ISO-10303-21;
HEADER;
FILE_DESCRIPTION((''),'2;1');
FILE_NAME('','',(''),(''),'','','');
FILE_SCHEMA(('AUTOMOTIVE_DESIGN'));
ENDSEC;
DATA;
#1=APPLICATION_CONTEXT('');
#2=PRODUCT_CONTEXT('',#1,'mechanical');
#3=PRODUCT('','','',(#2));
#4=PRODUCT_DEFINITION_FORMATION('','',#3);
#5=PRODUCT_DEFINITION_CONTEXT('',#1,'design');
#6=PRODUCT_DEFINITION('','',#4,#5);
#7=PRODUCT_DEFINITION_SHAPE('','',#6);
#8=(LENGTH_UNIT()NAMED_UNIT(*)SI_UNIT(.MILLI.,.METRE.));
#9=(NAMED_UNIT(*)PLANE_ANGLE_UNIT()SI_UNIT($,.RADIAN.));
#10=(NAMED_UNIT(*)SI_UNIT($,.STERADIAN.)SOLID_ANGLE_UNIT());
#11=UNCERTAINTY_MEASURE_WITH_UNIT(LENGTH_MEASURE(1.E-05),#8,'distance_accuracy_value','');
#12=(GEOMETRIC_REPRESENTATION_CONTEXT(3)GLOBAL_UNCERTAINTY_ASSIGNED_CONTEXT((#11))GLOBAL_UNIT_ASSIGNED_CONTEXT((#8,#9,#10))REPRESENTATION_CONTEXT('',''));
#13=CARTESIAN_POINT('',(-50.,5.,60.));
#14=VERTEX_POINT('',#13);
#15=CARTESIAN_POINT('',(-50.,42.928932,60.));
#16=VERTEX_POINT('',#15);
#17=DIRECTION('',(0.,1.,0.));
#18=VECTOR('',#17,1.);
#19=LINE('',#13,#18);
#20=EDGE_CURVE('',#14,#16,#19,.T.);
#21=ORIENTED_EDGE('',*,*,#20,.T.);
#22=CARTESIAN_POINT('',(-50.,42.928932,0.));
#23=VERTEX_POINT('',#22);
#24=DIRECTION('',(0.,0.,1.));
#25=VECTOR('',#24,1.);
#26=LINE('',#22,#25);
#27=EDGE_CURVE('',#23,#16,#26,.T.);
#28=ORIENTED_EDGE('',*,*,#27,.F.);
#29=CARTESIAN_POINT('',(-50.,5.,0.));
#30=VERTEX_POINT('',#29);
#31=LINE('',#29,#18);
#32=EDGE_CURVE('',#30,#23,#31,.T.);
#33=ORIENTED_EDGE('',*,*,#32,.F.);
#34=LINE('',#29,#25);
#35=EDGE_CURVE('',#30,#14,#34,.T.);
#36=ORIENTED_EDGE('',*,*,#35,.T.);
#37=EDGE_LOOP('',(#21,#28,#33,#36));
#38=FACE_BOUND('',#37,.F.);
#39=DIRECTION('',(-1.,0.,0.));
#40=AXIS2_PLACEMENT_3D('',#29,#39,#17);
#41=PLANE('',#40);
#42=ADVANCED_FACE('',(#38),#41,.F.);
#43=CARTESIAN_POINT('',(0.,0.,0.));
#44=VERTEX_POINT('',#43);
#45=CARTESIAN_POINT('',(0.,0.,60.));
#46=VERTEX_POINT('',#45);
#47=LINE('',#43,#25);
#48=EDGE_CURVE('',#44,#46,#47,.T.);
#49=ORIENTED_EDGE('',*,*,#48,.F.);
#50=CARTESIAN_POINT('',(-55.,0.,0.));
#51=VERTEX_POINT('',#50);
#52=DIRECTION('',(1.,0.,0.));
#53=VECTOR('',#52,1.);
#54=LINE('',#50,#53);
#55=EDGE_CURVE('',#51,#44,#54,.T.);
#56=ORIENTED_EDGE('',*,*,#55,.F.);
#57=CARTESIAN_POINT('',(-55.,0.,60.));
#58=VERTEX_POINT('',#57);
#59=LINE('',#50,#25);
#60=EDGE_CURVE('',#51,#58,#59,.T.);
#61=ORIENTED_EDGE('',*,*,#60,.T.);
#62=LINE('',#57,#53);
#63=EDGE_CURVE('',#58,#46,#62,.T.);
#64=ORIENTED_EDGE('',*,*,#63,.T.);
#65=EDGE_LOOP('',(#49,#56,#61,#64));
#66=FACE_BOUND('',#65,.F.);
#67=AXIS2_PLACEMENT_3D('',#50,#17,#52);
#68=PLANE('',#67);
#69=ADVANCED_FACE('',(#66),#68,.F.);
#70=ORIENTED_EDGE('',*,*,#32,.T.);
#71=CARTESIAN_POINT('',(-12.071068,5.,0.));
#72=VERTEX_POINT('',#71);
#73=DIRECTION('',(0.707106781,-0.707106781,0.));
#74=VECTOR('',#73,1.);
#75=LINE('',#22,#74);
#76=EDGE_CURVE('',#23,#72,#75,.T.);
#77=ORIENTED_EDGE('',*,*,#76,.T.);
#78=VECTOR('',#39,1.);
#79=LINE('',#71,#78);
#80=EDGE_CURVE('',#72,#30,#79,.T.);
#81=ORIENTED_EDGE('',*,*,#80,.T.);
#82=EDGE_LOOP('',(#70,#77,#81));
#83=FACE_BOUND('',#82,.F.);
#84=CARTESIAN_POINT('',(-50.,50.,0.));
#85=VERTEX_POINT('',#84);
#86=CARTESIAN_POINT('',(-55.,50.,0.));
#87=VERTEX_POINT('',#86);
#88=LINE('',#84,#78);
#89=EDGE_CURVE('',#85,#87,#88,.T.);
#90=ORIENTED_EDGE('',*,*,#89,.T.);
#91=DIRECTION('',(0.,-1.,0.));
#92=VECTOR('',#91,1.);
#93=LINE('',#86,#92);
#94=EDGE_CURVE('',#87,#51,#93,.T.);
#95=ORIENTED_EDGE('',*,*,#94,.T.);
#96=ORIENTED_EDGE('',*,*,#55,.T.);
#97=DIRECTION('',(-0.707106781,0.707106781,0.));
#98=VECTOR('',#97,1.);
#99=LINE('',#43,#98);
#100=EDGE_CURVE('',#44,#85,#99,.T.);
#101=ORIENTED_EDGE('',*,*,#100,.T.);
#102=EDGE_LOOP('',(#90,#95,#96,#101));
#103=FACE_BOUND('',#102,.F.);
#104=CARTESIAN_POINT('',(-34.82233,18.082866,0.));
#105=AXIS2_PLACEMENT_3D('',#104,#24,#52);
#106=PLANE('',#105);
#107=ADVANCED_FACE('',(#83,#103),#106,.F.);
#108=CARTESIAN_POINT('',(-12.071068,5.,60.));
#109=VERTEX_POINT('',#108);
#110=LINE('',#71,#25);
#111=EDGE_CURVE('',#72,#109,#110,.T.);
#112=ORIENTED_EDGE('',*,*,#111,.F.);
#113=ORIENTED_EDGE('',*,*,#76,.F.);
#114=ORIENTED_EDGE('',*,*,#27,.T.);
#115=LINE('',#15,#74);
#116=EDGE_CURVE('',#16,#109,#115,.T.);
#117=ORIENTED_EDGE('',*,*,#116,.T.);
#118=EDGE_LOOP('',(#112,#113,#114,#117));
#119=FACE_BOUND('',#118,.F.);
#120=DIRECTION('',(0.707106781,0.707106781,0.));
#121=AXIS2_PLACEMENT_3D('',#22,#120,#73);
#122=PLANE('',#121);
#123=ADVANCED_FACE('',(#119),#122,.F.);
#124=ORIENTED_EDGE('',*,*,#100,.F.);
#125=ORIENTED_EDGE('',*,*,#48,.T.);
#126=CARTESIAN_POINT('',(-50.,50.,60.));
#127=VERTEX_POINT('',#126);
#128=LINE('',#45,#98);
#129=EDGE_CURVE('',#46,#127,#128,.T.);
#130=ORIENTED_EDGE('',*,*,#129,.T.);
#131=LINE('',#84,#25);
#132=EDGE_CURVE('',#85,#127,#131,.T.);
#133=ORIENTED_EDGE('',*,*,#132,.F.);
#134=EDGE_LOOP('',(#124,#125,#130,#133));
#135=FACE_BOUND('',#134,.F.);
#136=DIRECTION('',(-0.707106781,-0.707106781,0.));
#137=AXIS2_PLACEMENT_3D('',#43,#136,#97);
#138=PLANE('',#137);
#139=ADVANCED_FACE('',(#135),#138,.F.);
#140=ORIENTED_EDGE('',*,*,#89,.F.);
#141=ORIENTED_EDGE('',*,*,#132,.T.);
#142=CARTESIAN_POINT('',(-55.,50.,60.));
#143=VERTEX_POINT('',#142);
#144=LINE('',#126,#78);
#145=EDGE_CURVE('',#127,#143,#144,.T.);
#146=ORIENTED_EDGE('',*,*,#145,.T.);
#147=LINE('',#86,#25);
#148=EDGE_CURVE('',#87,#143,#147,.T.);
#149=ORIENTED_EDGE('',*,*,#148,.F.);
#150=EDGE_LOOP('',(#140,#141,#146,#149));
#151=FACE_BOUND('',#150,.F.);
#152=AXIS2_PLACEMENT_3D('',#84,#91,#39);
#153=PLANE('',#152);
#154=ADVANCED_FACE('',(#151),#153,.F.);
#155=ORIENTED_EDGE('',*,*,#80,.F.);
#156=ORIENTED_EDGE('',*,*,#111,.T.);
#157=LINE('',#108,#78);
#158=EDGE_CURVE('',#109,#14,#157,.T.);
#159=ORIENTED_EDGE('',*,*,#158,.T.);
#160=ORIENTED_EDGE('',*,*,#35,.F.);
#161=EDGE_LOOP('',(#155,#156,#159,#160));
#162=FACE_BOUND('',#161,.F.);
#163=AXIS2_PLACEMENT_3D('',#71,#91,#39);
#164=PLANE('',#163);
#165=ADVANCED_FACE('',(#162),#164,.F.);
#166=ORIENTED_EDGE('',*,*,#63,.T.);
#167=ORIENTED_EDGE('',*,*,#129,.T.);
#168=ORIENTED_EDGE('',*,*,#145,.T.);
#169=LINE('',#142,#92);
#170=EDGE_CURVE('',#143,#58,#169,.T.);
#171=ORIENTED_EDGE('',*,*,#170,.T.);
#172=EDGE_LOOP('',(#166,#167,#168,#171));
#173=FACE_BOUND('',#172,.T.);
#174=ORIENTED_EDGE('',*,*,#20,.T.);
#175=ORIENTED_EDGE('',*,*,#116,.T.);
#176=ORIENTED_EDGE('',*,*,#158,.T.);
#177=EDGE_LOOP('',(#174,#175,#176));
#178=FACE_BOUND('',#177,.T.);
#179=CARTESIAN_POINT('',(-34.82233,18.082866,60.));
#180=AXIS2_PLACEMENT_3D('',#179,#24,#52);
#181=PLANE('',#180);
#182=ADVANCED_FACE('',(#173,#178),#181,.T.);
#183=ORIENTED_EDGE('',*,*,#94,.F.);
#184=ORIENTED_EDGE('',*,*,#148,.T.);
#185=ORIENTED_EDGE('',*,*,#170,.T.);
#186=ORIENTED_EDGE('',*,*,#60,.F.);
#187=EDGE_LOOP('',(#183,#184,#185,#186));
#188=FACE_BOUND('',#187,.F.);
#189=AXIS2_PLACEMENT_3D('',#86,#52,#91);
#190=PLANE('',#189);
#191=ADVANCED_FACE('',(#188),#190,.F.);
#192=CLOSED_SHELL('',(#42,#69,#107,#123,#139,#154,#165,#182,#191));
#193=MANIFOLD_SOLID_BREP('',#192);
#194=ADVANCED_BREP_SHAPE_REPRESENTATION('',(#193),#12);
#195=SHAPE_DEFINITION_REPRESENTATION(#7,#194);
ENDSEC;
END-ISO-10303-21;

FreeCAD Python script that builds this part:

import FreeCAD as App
import Part
import Sketcher
Q = App.Units.Quantity

doc = App.newDocument("Part")
body = doc.addObject("PartDesign::Body", "Body")

sketch1 = body.newObject("Sketcher::SketchObject", "Sketch")
sketch1.AttachmentSupport = (doc.getObject("XY_Plane"), [""])
sketch1.MapMode = "FlatFace"
sketch1.addGeometry(Part.LineSegment(App.Vector(-55, 0, 0), App.Vector(0, 0, 0)), False)
sketch1.addGeometry(Part.LineSegment(App.Vector(0, 0, 0), App.Vector(-50, 50, 0)), False)
sketch1.addGeometry(Part.LineSegment(App.Vector(-50, 50, 0), App.Vector(-55, 50, 0)), False)
sketch1.addGeometry(Part.LineSegment(App.Vector(-55, 50, 0), App.Vector(-55, 0, 0)), False)
sketch1.addGeometry(Part.LineSegment(App.Vector(-12, 5, 0), App.Vector(-50, 5, 0)), False)
sketch1.addGeometry(Part.LineSegment(App.Vector(-50, 5, 0), App.Vector(-50, 43, 0)), False)
sketch1.addGeometry(Part.LineSegment(App.Vector(-50, 43, 0), App.Vector(-12, 5, 0)), False)
sketch1.addConstraint(Sketcher.Constraint("Coincident", 0, 2, 1, 1))
sketch1.addConstraint(Sketcher.Constraint("Coincident", 1, 2, 2, 1))
sketch1.addConstraint(Sketcher.Constraint("Coincident", 2, 2, 3, 1))
sketch1.addConstraint(Sketcher.Constraint("Coincident", 3, 2, 0, 1))
sketch1.addConstraint(Sketcher.Constraint("Coincident", 4, 2, 5, 1))
sketch1.addConstraint(Sketcher.Constraint("Coincident", 5, 2, 6, 1))
sketch1.addConstraint(Sketcher.Constraint("Coincident", 6, 2, 4, 1))
sketch1.addConstraint(Sketcher.Constraint("Horizontal", 0))
sketch1.addConstraint(Sketcher.Constraint("Horizontal", 2))
sketch1.addConstraint(Sketcher.Constraint("Vertical", 3))
sketch1.addConstraint(Sketcher.Constraint("Horizontal", 4))
sketch1.addConstraint(Sketcher.Constraint("Vertical", 5))
sketch1.addConstraint(Sketcher.Constraint("Coincident", 0, 2, -1, 1))
sketch1.addConstraint(Sketcher.Constraint("Parallel", 1, 6))
sketch1.addConstraint(Sketcher.Constraint("Vertical", 1, 2, 4, 2))
sketch1.addConstraint(Sketcher.Constraint("Equal", 4, 5))
sketch1.addConstraint(Sketcher.Constraint("DistanceX", 0, 1, 0, 2, Q("55 mm")))
sketch1.addConstraint(Sketcher.Constraint("DistanceX", 2, 2, 2, 1, Q("5 mm")))
sketch1.addConstraint(Sketcher.Constraint("DistanceY", -1, 1, 4, 2, Q("5 mm")))
sketch1.addConstraint(Sketcher.Constraint("Distance", 6, Q("53.63961 mm")))
pad1 = body.newObject("PartDesign::Pad", "Pad")
pad1.Profile = sketch1
pad1.Length = 60

doc.recompute()
